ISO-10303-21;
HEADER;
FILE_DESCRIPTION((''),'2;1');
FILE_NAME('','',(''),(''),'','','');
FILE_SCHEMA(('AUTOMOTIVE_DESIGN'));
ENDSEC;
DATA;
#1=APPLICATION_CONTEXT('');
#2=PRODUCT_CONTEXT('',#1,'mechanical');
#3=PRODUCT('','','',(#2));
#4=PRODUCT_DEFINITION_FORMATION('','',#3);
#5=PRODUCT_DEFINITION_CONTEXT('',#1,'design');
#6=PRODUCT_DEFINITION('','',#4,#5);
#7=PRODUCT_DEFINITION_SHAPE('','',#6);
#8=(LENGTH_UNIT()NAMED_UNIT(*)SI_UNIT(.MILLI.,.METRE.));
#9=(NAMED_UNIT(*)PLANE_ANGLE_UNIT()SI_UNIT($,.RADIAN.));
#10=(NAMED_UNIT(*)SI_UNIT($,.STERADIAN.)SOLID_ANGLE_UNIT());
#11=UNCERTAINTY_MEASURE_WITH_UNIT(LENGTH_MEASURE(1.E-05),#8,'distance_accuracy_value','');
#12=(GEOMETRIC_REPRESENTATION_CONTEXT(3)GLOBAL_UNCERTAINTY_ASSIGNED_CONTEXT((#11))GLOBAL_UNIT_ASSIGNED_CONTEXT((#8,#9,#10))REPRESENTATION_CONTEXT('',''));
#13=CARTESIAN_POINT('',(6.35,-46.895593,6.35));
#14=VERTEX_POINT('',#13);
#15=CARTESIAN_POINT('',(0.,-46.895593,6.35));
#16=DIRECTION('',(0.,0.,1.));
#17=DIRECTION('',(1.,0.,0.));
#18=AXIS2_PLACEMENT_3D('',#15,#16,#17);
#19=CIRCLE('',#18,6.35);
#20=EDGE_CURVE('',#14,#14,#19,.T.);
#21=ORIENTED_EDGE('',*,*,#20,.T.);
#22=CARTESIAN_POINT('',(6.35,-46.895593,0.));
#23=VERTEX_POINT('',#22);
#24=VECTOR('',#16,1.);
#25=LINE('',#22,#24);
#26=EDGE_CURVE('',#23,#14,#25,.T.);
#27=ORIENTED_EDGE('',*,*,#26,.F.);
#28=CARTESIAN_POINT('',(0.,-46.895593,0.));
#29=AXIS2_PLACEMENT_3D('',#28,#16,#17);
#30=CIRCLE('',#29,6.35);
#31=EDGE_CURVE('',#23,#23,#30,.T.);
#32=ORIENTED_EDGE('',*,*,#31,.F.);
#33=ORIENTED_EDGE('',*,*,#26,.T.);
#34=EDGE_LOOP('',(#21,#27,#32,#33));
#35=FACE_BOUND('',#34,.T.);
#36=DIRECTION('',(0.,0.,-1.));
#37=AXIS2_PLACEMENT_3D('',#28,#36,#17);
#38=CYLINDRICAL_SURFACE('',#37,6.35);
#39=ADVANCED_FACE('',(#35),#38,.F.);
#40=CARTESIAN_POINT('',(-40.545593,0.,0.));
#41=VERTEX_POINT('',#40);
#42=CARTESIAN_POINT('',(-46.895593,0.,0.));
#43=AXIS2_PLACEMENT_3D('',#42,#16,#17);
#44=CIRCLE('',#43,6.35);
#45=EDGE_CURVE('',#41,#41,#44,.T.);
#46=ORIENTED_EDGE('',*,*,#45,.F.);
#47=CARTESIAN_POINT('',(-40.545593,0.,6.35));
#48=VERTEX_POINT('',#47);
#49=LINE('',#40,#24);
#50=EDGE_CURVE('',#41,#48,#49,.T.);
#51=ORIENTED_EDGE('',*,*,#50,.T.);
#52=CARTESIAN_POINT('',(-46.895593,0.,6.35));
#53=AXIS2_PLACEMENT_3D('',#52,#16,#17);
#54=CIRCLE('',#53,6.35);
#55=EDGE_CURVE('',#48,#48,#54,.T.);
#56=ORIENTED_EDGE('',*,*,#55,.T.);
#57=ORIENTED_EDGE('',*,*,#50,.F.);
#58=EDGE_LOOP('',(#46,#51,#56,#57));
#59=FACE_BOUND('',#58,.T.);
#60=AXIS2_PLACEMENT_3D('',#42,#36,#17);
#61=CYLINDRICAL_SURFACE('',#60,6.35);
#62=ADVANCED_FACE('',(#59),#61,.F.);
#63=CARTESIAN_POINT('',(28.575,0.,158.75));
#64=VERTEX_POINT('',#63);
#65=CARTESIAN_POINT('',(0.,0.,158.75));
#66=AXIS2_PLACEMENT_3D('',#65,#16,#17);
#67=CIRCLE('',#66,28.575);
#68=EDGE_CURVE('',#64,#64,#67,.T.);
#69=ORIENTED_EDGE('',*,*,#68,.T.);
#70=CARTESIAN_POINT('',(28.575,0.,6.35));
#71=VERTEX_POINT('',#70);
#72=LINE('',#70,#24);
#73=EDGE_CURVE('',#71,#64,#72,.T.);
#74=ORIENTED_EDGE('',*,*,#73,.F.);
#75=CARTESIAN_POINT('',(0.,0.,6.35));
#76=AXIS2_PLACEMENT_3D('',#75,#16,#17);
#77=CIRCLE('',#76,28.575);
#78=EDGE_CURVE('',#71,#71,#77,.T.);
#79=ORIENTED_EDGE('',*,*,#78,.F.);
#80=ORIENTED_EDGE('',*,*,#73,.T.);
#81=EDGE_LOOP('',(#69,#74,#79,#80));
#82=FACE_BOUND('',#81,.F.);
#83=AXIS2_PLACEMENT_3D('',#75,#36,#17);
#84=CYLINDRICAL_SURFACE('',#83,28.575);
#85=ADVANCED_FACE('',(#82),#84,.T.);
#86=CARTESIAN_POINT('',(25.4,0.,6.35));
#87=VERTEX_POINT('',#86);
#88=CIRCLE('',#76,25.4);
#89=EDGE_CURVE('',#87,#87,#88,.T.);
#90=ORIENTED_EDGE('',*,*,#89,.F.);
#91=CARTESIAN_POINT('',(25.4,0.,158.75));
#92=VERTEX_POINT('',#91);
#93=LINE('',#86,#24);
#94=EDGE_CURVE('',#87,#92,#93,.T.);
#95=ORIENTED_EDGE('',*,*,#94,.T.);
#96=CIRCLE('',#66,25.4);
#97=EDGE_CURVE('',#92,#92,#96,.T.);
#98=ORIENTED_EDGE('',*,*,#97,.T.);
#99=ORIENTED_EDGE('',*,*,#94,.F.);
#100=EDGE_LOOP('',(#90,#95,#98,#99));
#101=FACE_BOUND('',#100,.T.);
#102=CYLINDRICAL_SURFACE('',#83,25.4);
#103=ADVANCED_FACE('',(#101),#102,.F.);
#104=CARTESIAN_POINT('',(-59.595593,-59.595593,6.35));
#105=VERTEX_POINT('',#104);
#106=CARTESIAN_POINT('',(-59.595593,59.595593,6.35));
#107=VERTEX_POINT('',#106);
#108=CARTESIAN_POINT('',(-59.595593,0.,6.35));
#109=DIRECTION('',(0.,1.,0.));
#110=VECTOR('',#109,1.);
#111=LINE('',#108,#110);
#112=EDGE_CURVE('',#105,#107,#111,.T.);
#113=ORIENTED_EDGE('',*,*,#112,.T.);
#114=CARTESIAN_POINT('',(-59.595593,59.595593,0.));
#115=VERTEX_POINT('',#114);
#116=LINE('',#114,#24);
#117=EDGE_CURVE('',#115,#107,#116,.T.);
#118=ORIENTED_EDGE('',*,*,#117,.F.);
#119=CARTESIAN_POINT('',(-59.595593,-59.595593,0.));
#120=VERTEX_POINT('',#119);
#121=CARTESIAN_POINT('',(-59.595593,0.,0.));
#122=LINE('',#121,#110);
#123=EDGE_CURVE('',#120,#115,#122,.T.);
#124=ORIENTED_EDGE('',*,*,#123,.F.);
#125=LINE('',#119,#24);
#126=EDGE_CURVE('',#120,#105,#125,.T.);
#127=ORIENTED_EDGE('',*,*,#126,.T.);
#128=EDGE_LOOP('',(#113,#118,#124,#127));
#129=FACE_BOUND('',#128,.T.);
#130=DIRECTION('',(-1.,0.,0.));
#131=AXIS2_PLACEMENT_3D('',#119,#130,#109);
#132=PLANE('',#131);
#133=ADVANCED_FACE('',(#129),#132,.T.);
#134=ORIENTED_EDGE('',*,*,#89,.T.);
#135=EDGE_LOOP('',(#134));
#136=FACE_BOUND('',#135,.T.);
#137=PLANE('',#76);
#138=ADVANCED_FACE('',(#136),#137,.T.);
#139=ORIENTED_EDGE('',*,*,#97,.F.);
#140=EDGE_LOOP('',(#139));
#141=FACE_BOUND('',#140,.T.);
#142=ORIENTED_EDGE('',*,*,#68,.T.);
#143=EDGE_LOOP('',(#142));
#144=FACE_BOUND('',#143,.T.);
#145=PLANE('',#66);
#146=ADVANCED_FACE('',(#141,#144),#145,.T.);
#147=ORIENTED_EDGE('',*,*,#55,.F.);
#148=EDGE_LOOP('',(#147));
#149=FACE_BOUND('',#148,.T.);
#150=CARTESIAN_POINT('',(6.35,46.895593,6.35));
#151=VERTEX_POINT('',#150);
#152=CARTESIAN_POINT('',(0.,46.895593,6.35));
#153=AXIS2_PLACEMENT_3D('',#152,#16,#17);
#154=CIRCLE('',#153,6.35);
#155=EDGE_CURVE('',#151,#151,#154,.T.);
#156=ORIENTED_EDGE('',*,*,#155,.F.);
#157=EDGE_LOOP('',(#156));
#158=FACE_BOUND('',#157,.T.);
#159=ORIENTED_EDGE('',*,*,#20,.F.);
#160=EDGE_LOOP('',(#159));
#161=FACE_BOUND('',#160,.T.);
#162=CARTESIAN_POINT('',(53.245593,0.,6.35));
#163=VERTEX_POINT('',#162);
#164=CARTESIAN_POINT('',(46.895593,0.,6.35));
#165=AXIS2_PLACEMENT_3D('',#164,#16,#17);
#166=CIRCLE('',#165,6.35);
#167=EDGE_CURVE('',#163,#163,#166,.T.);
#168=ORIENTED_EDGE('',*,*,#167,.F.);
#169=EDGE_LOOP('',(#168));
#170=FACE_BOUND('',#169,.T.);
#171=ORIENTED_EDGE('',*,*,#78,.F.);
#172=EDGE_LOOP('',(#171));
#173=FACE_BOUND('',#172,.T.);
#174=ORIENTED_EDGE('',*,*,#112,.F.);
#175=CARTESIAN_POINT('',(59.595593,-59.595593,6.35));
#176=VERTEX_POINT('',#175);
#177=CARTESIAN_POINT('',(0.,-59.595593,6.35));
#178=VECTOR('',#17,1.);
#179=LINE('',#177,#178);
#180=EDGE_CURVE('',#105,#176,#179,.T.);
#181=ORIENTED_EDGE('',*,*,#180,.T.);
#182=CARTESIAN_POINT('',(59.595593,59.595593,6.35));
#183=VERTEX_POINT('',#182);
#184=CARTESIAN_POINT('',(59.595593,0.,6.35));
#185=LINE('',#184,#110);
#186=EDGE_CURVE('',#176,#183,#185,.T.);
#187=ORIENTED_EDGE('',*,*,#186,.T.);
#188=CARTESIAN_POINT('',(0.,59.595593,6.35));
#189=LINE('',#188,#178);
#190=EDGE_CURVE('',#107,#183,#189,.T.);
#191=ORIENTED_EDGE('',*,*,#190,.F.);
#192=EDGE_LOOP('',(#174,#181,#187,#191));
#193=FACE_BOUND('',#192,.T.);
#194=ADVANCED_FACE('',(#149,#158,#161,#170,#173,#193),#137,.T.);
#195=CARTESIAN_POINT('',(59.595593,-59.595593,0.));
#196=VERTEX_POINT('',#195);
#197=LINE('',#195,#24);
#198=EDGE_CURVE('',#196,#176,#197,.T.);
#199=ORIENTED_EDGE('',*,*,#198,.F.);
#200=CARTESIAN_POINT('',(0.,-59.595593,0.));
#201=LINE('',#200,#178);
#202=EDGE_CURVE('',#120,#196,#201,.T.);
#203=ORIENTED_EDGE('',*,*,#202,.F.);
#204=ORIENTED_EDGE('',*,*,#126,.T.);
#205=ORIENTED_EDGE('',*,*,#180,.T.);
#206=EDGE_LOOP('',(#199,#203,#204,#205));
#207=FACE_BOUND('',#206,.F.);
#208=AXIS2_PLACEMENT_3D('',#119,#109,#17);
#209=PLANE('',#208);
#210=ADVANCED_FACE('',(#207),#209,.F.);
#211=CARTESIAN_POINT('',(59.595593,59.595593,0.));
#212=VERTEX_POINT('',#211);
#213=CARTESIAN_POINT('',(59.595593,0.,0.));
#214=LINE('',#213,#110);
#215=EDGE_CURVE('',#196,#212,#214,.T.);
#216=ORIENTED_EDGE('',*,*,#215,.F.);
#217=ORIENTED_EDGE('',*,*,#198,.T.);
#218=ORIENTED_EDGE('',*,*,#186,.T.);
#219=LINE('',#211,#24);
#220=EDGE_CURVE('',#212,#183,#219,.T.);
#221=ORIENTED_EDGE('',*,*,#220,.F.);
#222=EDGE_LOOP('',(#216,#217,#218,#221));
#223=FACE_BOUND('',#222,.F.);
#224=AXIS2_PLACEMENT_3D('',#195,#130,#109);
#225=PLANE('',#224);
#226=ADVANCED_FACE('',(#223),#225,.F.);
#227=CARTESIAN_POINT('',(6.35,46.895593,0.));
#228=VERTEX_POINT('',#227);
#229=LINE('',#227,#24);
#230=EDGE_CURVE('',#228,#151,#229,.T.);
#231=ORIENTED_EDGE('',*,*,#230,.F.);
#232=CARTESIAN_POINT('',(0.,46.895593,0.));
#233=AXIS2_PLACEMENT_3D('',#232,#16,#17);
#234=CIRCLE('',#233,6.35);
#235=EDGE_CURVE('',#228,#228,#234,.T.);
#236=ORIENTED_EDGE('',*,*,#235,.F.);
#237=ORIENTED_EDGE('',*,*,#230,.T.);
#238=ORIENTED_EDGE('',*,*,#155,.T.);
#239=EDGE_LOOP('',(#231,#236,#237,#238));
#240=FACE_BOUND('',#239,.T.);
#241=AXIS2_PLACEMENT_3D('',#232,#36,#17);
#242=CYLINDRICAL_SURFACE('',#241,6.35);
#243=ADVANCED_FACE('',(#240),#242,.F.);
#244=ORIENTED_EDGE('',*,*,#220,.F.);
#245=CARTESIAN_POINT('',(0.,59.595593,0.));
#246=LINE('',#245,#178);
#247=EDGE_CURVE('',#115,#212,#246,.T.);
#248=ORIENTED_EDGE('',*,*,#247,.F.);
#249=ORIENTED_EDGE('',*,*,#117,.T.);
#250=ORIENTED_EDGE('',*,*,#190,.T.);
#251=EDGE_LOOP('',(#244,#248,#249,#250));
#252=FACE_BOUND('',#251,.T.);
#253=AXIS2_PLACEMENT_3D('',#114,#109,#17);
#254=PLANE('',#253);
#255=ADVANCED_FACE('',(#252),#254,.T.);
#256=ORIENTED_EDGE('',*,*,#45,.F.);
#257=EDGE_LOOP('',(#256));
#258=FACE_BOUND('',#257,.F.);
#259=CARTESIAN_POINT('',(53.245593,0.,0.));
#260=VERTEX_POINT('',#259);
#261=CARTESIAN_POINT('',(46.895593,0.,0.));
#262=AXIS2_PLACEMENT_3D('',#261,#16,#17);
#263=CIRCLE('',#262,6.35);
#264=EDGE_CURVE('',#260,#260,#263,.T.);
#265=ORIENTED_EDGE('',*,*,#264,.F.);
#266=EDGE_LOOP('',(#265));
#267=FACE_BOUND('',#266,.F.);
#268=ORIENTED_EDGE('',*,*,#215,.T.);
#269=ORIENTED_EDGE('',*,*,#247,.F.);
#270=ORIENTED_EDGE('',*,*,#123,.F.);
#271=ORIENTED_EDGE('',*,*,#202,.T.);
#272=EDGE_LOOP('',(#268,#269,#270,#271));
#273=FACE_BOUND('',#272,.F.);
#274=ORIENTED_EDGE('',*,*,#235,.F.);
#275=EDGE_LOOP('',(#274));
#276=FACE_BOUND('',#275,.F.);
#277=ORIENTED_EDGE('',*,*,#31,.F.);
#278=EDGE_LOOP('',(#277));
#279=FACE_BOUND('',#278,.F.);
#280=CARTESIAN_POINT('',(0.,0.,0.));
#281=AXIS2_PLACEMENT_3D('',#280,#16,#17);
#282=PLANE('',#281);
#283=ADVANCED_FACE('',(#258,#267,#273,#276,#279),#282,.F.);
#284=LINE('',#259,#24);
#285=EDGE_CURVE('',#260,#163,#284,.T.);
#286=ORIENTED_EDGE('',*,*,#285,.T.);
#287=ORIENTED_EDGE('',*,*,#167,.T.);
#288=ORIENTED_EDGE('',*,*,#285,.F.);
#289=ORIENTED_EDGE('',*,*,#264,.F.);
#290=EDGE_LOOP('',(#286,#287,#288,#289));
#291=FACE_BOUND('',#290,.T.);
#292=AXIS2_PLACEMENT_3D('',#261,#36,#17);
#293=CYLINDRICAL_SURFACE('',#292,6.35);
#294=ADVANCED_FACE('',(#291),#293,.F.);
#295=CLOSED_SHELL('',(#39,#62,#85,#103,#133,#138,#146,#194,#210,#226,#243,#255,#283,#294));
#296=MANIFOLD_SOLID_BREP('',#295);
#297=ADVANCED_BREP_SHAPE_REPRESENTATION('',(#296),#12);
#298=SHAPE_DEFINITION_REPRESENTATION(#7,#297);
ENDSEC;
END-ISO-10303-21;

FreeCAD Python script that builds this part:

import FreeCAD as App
import Part
import Sketcher
from FreeCAD import Vector
Q = App.Units.Quantity

doc = App.newDocument("Part")
params = doc.addObject("Spreadsheet::Sheet", "Params")
for row, (alias, value) in enumerate([
    ("sketch1_diameter", "0.5 in"),
    ("pad1_length", "0.25 in"),
    ("sketch2_diameter", "2 in"),
    ("sketch2_diameter2", "2.25 in"),
    ("pad2_length", "6 in"),
], start=1):
    params.set(f"A{row}", alias)
    params.set(f"B{row}", "=" + value)
    params.setAlias(f"B{row}", alias)

body = doc.addObject("PartDesign::Body", "Body")

sketch1 = body.newObject("Sketcher::SketchObject", "Sketch")
sketch1.AttachmentSupport = (doc.getObject("XY_Plane"), [""])
sketch1.MapMode = "FlatFace"
sketch1.addGeometry([
    Part.LineSegment(Vector(-59.595593, 59.595593, 0), Vector(-59.595593, -59.595593, 0)),
    Part.LineSegment(Vector(-59.595593, -59.595593, 0), Vector(59.595593, -59.595593, 0)),
    Part.LineSegment(Vector(59.595593, -59.595593, 0), Vector(59.595593, 59.595593, 0)),
    Part.LineSegment(Vector(59.595593, 59.595593, 0), Vector(-59.595593, 59.595593, 0)),
    Part.Circle(Vector(0, -46.895593, 0), Vector(0, 0, 1), 6.35),
    Part.Circle(Vector(-46.895593, 0, 0), Vector(0, 0, 1), 6.35),
    Part.Circle(Vector(46.895593, 0, 0), Vector(0, 0, 1), 6.35),
    Part.Circle(Vector(0, 46.895593, 0), Vector(0, 0, 1), 6.35),
], False)
sketch1.addConstraint([
    Sketcher.Constraint("Coincident", 0, 2, 1, 1),
    Sketcher.Constraint("Coincident", 1, 2, 2, 1),
    Sketcher.Constraint("Coincident", 2, 2, 3, 1),
    Sketcher.Constraint("Coincident", 3, 2, 0, 1),
    Sketcher.Constraint("Vertical", 0),
    Sketcher.Constraint("Horizontal", 1),
    Sketcher.Constraint("Vertical", 2),
    Sketcher.Constraint("Horizontal", 3),
    Sketcher.Constraint("Equal", 4, 5),
    Sketcher.Constraint("Equal", 5, 6),
    Sketcher.Constraint("Equal", 6, 7),
    Sketcher.Constraint("Symmetric", 5, 3, 6, 3, -1, 1),
    Sketcher.Constraint("Symmetric", 4, 3, 7, 3, -1, 1),
    Sketcher.Constraint("Symmetric", 0, 2, 2, 2, -1, 1),
    Sketcher.Constraint("PointOnObject", 4, 3, -2),
    Sketcher.Constraint("PointOnObject", 5, 3, -1),
    Sketcher.Constraint("Equal", 3, 0),
    Sketcher.Constraint("Diameter", 4, Q("0.5 in")),
    Sketcher.Constraint("DistanceY", 0, 2, 4, 3, Q("0.5 in")),
    Sketcher.Constraint("DistanceX", 0, 2, 5, 3, Q("0.5 in")),
    Sketcher.Constraint("DistanceX", 1, 1, 1, 2, Q("119.191186 mm")),
])
sketch1.setExpression("Constraints[17]", "Params.sketch1_diameter")
pad1 = body.newObject("PartDesign::Pad", "Pad")
pad1.Profile = sketch1
pad1.setExpression("Length", "Params.pad1_length")

sketch2 = body.newObject("Sketcher::SketchObject", "Sketch001")
sketch2.AttachmentSupport = (doc.getObject("XY_Plane"), [""])
sketch2.MapMode = "FlatFace"
sketch2.AttachmentOffset = App.Placement(Vector(0, 0, 0.25 * 25.4), App.Rotation())
sketch2.addGeometry([
    Part.Circle(Vector(0, 0, 0), Vector(0, 0, 1), 28.575),
    Part.Circle(Vector(0, 0, 0), Vector(0, 0, 1), 25.4),
], False)
sketch2.addConstraint([
    Sketcher.Constraint("Coincident", 0, 3, -1, 1),
    Sketcher.Constraint("Coincident", 1, 3, -1, 1),
    Sketcher.Constraint("Diameter", 1, Q("2 in")),
    Sketcher.Constraint("Diameter", 0, Q("2.25 in")),
])
sketch2.setExpression("Constraints[2]", "Params.sketch2_diameter")
sketch2.setExpression("Constraints[3]", "Params.sketch2_diameter2")
pad2 = body.newObject("PartDesign::Pad", "Pad001")
pad2.Profile = sketch2
pad2.setExpression("Length", "Params.pad2_length")

doc.recompute()
